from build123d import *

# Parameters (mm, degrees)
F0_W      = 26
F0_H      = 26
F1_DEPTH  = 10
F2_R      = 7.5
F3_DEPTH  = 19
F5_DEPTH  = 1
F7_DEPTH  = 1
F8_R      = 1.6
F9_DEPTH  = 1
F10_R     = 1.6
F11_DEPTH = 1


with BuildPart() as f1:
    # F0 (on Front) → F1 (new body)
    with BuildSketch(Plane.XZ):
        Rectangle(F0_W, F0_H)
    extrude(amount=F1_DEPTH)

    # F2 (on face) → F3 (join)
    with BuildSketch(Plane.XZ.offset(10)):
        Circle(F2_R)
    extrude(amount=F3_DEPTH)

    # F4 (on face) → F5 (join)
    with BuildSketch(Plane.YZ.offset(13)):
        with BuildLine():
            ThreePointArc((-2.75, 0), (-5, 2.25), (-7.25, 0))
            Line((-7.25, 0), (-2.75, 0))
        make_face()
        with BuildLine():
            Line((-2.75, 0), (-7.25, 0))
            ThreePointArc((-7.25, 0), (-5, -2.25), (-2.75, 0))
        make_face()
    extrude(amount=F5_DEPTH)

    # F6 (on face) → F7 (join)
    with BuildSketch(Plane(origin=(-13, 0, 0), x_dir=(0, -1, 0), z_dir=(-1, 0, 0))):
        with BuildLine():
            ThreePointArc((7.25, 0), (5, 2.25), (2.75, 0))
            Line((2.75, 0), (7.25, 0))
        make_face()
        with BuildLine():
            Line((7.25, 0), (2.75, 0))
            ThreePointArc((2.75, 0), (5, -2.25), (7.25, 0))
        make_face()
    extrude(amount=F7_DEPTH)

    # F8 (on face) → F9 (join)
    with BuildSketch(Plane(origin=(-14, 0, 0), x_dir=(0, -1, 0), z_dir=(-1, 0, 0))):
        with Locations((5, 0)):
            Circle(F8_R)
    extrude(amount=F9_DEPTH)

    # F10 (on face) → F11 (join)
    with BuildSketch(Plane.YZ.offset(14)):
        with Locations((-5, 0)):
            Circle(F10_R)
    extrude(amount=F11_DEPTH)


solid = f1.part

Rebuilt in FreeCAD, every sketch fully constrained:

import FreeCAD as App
import Part
import Sketcher
from FreeCAD import Vector


def add_polygon(sketch, points):
    """Adds a closed chain of lines whose ends are joined by coincident constraints."""
    first, n = sketch.GeometryCount, len(points)
    for a, b in zip(points, points[1:] + points[:1]):
        sketch.addGeometry(Part.LineSegment(App.Vector(*a, 0), App.Vector(*b, 0)), False)
    for i in range(n):
        sketch.addConstraint(Sketcher.Constraint("Coincident", first + i, 2, first + (i + 1) % n, 1))

doc = App.newDocument("Part")
body = doc.addObject("PartDesign::Body", "Body")

# Sketch on XZ plane
sketch1 = doc.addObject("Sketcher::SketchObject", "Sketch")
body.addObject(sketch1)
sketch1.AttachmentSupport = (doc.XZ_Plane, [""])
sketch1.MapMode = "FlatFace"
add_polygon(sketch1, [(-13, 13), (-13, -13), (13, -13), (13, 13)])  # lines 0-3
sketch1.addConstraint([
    Sketcher.Constraint("Vertical", 0),
    Sketcher.Constraint("Horizontal", 1),
    Sketcher.Constraint("Vertical", 2),
    Sketcher.Constraint("Horizontal", 3),
    Sketcher.Constraint("Symmetric", 0, 2, 2, 2, -1, 1),
    Sketcher.Constraint("Equal", 3, 0),
    Sketcher.Constraint("DistanceX", 1, 1, 1, 2, 26.0),
])
pad1 = doc.addObject("PartDesign::Pad", "Pad")
body.addObject(pad1)
pad1.Profile = sketch1
pad1.Length = 10

# Sketch on XZ plane
sketch2 = doc.addObject("Sketcher::SketchObject", "Sketch001")
body.addObject(sketch2)
sketch2.AttachmentSupport = (doc.XZ_Plane, [""])
sketch2.MapMode = "FlatFace"
sketch2.AttachmentOffset = App.Placement(Vector(0, 0, 10), App.Rotation())
sketch2.addGeometry(Part.Circle(Vector(0, 0, 0), Vector(0, 0, 1), 8), False)
sketch2.addConstraint([
    Sketcher.Constraint("Coincident", 0, 3, -1, 1),
    Sketcher.Constraint("Diameter", 0, 15.0),
])
pad2 = doc.addObject("PartDesign::Pad", "Pad001")
body.addObject(pad2)
pad2.Profile = sketch2
pad2.Length = 19

# Sketch on YZ plane
sketch3 = doc.addObject("Sketcher::SketchObject", "Sketch002")
body.addObject(sketch3)
sketch3.AttachmentSupport = (doc.YZ_Plane, [""])
sketch3.MapMode = "FlatFace"
sketch3.AttachmentOffset = App.Placement(Vector(0, 0, 13), App.Rotation())
sketch3.addGeometry(Part.Circle(Vector(-5, 0, 0), Vector(0, 0, 1), 2.2), False)
sketch3.addConstraint([
    Sketcher.Constraint("PointOnObject", 0, 3, -1),
    Sketcher.Constraint("Diameter", 0, 4.5),
    Sketcher.Constraint("DistanceX", 0, 3, -1, 1, 5.0),
])
pad3 = doc.addObject("PartDesign::Pad", "Pad002")
body.addObject(pad3)
pad3.Profile = sketch3
pad3.Length = 1

# Sketch on YZ plane
sketch4 = doc.addObject("Sketcher::SketchObject", "Sketch003")
body.addObject(sketch4)
sketch4.AttachmentSupport = (doc.YZ_Plane, [""])
sketch4.MapMode = "FlatFace"
sketch4.AttachmentOffset = App.Placement(Vector(0, 0, -13), App.Rotation())
sketch4.addGeometry(Part.Circle(Vector(-5, 0, 0), Vector(0, 0, 1), 2.2), False)
sketch4.addConstraint([
    Sketcher.Constraint("PointOnObject", 0, 3, -1),
    Sketcher.Constraint("Diameter", 0, 4.5),
    Sketcher.Constraint("DistanceX", 0, 3, -1, 1, 5.0),
])
pad4 = doc.addObject("PartDesign::Pad", "Pad003")
body.addObject(pad4)
pad4.Profile = sketch4
pad4.Length = 1
pad4.Reversed = True

# Sketch on YZ plane
sketch5 = doc.addObject("Sketcher::SketchObject", "Sketch004")
body.addObject(sketch5)
sketch5.AttachmentSupport = (doc.YZ_Plane, [""])
sketch5.MapMode = "FlatFace"
sketch5.AttachmentOffset = App.Placement(Vector(0, 0, -14), App.Rotation())
sketch5.addGeometry(Part.Circle(Vector(-5, 0, 0), Vector(0, 0, 1), 1.6), False)
sketch5.addConstraint([
    Sketcher.Constraint("PointOnObject", 0, 3, -1),
    Sketcher.Constraint("Diameter", 0, 3.2),
    Sketcher.Constraint("DistanceX", 0, 3, -1, 1, 5.0),
])
pad5 = doc.addObject("PartDesign::Pad", "Pad004")
body.addObject(pad5)
pad5.Profile = sketch5
pad5.Length = 1
pad5.Reversed = True

# Sketch on YZ plane
sketch6 = doc.addObject("Sketcher::SketchObject", "Sketch005")
body.addObject(sketch6)
sketch6.AttachmentSupport = (doc.YZ_Plane, [""])
sketch6.MapMode = "FlatFace"
sketch6.AttachmentOffset = App.Placement(Vector(0, 0, 14), App.Rotation())
sketch6.addGeometry(Part.Circle(Vector(-5, 0, 0), Vector(0, 0, 1), 1.6), False)
sketch6.addConstraint([
    Sketcher.Constraint("PointOnObject", 0, 3, -1),
    Sketcher.Constraint("Diameter", 0, 3.2),
    Sketcher.Constraint("DistanceX", 0, 3, -1, 1, 5.0),
])
pad6 = doc.addObject("PartDesign::Pad", "Pad005")
body.addObject(pad6)
pad6.Profile = sketch6
pad6.Length = 1

doc.recompute()
